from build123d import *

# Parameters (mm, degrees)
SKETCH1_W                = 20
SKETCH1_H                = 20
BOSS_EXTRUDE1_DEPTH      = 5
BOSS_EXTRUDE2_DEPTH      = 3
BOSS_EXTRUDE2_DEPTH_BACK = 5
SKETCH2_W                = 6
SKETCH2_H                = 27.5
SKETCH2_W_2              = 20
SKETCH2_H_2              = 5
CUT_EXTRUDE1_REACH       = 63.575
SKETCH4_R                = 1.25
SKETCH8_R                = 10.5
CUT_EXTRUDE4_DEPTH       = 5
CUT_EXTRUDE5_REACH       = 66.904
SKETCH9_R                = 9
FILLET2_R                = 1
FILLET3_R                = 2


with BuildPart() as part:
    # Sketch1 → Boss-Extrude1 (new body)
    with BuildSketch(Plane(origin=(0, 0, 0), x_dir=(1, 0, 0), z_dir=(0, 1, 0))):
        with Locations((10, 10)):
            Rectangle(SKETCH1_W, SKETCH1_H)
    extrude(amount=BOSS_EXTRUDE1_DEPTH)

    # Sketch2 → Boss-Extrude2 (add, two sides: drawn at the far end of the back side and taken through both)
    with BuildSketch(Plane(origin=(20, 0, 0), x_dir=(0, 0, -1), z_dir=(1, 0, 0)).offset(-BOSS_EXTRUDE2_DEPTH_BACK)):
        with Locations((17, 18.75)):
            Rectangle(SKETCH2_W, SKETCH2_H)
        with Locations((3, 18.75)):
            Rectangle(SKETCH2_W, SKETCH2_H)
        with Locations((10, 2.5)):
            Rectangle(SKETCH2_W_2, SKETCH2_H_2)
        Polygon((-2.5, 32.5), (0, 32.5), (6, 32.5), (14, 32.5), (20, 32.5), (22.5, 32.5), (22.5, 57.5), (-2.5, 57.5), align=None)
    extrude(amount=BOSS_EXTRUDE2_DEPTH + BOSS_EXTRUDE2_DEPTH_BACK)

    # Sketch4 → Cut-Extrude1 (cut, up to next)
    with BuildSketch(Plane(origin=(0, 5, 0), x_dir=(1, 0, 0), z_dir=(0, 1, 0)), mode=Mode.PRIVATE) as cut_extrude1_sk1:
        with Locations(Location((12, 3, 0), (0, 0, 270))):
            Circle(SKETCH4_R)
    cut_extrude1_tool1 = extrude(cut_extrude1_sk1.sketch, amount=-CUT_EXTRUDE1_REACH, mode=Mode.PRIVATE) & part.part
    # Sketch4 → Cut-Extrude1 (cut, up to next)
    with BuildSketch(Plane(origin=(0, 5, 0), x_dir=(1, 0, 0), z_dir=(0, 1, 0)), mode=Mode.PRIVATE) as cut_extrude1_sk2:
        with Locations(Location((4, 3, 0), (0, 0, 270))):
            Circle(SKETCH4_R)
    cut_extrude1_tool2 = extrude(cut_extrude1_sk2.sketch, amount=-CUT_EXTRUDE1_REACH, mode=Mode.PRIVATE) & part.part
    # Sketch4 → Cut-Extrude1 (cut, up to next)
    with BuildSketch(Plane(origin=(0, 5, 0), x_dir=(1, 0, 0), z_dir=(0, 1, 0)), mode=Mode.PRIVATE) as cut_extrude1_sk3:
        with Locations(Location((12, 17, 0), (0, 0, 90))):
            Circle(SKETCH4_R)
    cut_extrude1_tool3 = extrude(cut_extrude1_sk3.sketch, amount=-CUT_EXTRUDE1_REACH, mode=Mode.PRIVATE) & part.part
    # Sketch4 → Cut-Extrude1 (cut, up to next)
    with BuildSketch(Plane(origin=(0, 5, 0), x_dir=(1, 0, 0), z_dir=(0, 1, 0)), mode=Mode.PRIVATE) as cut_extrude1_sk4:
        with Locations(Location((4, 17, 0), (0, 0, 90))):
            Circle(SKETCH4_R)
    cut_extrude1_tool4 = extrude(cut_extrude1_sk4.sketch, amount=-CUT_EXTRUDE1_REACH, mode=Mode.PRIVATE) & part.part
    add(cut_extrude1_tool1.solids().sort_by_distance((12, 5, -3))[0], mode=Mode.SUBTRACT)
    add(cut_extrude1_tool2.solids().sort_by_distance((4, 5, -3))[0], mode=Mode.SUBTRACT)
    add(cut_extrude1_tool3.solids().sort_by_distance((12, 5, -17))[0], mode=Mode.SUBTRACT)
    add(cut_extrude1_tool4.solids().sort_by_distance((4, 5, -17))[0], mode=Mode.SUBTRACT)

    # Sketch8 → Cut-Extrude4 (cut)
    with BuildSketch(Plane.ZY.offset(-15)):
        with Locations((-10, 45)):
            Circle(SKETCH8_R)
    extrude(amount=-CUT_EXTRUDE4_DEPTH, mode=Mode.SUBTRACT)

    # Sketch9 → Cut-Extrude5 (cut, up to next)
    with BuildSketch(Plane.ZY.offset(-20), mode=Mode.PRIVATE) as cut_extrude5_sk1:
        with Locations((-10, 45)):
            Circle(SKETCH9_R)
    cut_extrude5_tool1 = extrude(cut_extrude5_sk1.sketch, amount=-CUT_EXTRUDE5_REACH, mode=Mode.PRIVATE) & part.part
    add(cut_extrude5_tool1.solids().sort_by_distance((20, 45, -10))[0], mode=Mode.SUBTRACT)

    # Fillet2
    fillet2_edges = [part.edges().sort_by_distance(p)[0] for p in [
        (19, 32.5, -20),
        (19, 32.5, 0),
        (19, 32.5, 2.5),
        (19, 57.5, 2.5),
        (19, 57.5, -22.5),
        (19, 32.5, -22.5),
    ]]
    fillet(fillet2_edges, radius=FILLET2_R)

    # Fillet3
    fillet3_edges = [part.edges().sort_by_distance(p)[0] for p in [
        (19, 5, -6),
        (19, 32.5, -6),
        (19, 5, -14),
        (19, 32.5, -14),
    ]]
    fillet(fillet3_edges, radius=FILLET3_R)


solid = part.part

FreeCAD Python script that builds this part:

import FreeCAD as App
import Part
import Sketcher
from FreeCAD import Vector


def edges_at(feature, points):
    """Names of the edges that pass closest to the given points."""
    edges = feature.Shape.Edges
    near = lambda p: min(range(len(edges)), key=lambda i: edges[i].distToShape(Part.Vertex(*p))[0])
    return sorted({f"Edge{near(p) + 1}" for p in points})

doc = App.newDocument("Part")
params = doc.addObject("Spreadsheet::Sheet", "Params")
for row, (alias, value) in enumerate([
    ("sketch1_width", "20 mm"),
    ("pad1_length", "5 mm"),
    ("sketch2_width", "25 mm"),
    ("sketch2_height", "20 mm"),
    ("sketch2_height2", "8 mm"),
    ("sketch2_width2", "32.5 mm"),
    ("sketch2_width3", "27.5 mm"),
    ("pad2_length", "3 mm"),
    ("pad2_length2", "5 mm"),
    ("sketch3_diameter", "2.5 mm"),
    ("sketch4_diameter", "2.5 mm"),
    ("sketch5_diameter", "2.5 mm"),
    ("sketch6_diameter", "2.5 mm"),
    ("sketch7_diameter", "21 mm"),
    ("pocket5_length", "5 mm"),
    ("sketch8_diameter", "18 mm"),
    ("fillet_radius", "1 mm"),
    ("fillet2_radius", "2 mm"),
], start=1):
    params.set(f"A{row}", alias)
    params.set(f"B{row}", "=" + value)
    params.setAlias(f"B{row}", alias)

body = doc.addObject("PartDesign::Body", "Body")

# Sketch on XZ plane
sketch1 = body.newObject("Sketcher::SketchObject", "Sketch")
sketch1.AttachmentSupport = (doc.getObject("XZ_Plane"), [""])
sketch1.MapMode = "FlatFace"
sketch1.addGeometry(Part.LineSegment(Vector(0, -20, 0), Vector(0, 0, 0)), False)
sketch1.addGeometry(Part.LineSegment(Vector(0, 0, 0), Vector(20, 0, 0)), False)
sketch1.addGeometry(Part.LineSegment(Vector(20, 0, 0), Vector(20, -20, 0)), False)
sketch1.addGeometry(Part.LineSegment(Vector(20, -20, 0), Vector(0, -20, 0)), False)
sketch1.addConstraint(Sketcher.Constraint("Coincident", 0, 2, 1, 1))
sketch1.addConstraint(Sketcher.Constraint("Coincident", 1, 2, 2, 1))
sketch1.addConstraint(Sketcher.Constraint("Coincident", 2, 2, 3, 1))
sketch1.addConstraint(Sketcher.Constraint("Coincident", 3, 2, 0, 1))
sketch1.addConstraint(Sketcher.Constraint("Vertical", 0))
sketch1.addConstraint(Sketcher.Constraint("Horizontal", 1))
sketch1.addConstraint(Sketcher.Constraint("Vertical", 2))
sketch1.addConstraint(Sketcher.Constraint("Horizontal", 3))
sketch1.addConstraint(Sketcher.Constraint("Coincident", 0, 2, -1, 1))
sketch1.addConstraint(Sketcher.Constraint("Equal", 3, 0))
sketch1.addConstraint(Sketcher.Constraint("DistanceX", 1, 1, 1, 2, 20.0))
sketch1.setExpression("Constraints[10]", "Params.sketch1_width")
pad1 = body.newObject("PartDesign::Pad", "Pad")
pad1.Profile = sketch1
pad1.setExpression("Length", "Params.pad1_length")
pad1.Reversed = True

# Sketch on YZ plane
sketch2 = body.newObject("Sketcher::SketchObject", "Sketch001")
sketch2.AttachmentSupport = (doc.getObject("YZ_Plane"), [""])
sketch2.MapMode = "FlatFace"
sketch2.AttachmentOffset = App.Placement(Vector(0, 0, 20), App.Rotation())
sketch2.addGeometry(Part.LineSegment(Vector(32.5, 0, 0), Vector(0, 0, 0)), False)
sketch2.addGeometry(Part.LineSegment(Vector(0, 0, 0), Vector(0, -20, 0)), False)
sketch2.addGeometry(Part.LineSegment(Vector(0, -20, 0), Vector(32.5, -20, 0)), False)
sketch2.addGeometry(Part.LineSegment(Vector(32.5, -20, 0), Vector(32.5, -22.5, 0)), False)
sketch2.addGeometry(Part.LineSegment(Vector(32.5, -22.5, 0), Vector(57.5, -22.5, 0)), False)
sketch2.addGeometry(Part.LineSegment(Vector(57.5, -22.5, 0), Vector(57.5, 2.5, 0)), False)
sketch2.addGeometry(Part.LineSegment(Vector(57.5, 2.5, 0), Vector(32.5, 2.5, 0)), False)
sketch2.addGeometry(Part.LineSegment(Vector(32.5, 2.5, 0), Vector(32.5, 0, 0)), False)
sketch2.addGeometry(Part.LineSegment(Vector(32.5, -14, 0), Vector(5, -14, 0)), False)
sketch2.addGeometry(Part.LineSegment(Vector(5, -14, 0), Vector(5, -6, 0)), False)
sketch2.addGeometry(Part.LineSegment(Vector(5, -6, 0), Vector(32.5, -6, 0)), False)
sketch2.addGeometry(Part.LineSegment(Vector(32.5, -6, 0), Vector(32.5, -14, 0)), False)
sketch2.addConstraint(Sketcher.Constraint("Coincident", 0, 2, 1, 1))
sketch2.addConstraint(Sketcher.Constraint("Coincident", 1, 2, 2, 1))
sketch2.addConstraint(Sketcher.Constraint("Coincident", 2, 2, 3, 1))
sketch2.addConstraint(Sketcher.Constraint("Coincident", 3, 2, 4, 1))
sketch2.addConstraint(Sketcher.Constraint("Coincident", 4, 2, 5, 1))
sketch2.addConstraint(Sketcher.Constraint("Coincident", 5, 2, 6, 1))
sketch2.addConstraint(Sketcher.Constraint("Coincident", 6, 2, 7, 1))
sketch2.addConstraint(Sketcher.Constraint("Coincident", 7, 2, 0, 1))
sketch2.addConstraint(Sketcher.Constraint("Coincident", 8, 2, 9, 1))
sketch2.addConstraint(Sketcher.Constraint("Coincident", 9, 2, 10, 1))
sketch2.addConstraint(Sketcher.Constraint("Coincident", 10, 2, 11, 1))
sketch2.addConstraint(Sketcher.Constraint("Coincident", 11, 2, 8, 1))
sketch2.addConstraint(Sketcher.Constraint("Horizontal", 0))
sketch2.addConstraint(Sketcher.Constraint("Vertical", 1))
sketch2.addConstraint(Sketcher.Constraint("Horizontal", 2))
sketch2.addConstraint(Sketcher.Constraint("Vertical", 3))
sketch2.addConstraint(Sketcher.Constraint("Horizontal", 4))
sketch2.addConstraint(Sketcher.Constraint("Vertical", 5))
sketch2.addConstraint(Sketcher.Constraint("Horizontal", 6))
sketch2.addConstraint(Sketcher.Constraint("Vertical", 7))
sketch2.addConstraint(Sketcher.Constraint("Horizontal", 8))
sketch2.addConstraint(Sketcher.Constraint("Vertical", 9))
sketch2.addConstraint(Sketcher.Constraint("Horizontal", 10))
sketch2.addConstraint(Sketcher.Constraint("Vertical", 11))
sketch2.addConstraint(Sketcher.Constraint("Coincident", 0, 2, -1, 1))
sketch2.addConstraint(Sketcher.Constraint("Vertical", 3, 2, 6, 2))
sketch2.addConstraint(Sketcher.Constraint("Vertical", 7, 2, 10, 2))
sketch2.addConstraint(Sketcher.Constraint("Equal", 6, 5))
sketch2.addConstraint(Sketcher.Constraint("Equal", 3, 7))
sketch2.addConstraint(Sketcher.Constraint("DistanceX", 4, 1, 4, 2, 25.0))
sketch2.addConstraint(Sketcher.Constraint("DistanceY", 1, 2, 1, 1, 20.0))
sketch2.addConstraint(Sketcher.Constraint("DistanceY", 9, 1, 9, 2, 8.0))
sketch2.addConstraint(Sketcher.Constraint("DistanceX", 0, 2, 0, 1, 32.5))
sketch2.addConstraint(Sketcher.Constraint("DistanceX", 8, 2, 8, 1, 27.5))
sketch2.addConstraint(Sketcher.Constraint("DistanceY", 8, 2, -1, 1, 14.0))
sketch2.setExpression("Constraints[29]", "Params.sketch2_width")
sketch2.setExpression("Constraints[30]", "Params.sketch2_height")
sketch2.setExpression("Constraints[31]", "Params.sketch2_height2")
sketch2.setExpression("Constraints[32]", "Params.sketch2_width2")
sketch2.setExpression("Constraints[33]", "Params.sketch2_width3")
pad2 = body.newObject("PartDesign::Pad", "Pad001")
pad2.Profile = sketch2
pad2.Type = "TwoLengths"
pad2.setExpression("Length", "Params.pad2_length")
pad2.setExpression("Length2", "Params.pad2_length2")

# Sketch on XZ plane
sketch3 = body.newObject("Sketcher::SketchObject", "Sketch002")
sketch3.AttachmentSupport = (doc.getObject("XZ_Plane"), [""])
sketch3.MapMode = "FlatFace"
sketch3.AttachmentOffset = App.Placement(Vector(0, 0, -5), App.Rotation())
sketch3.addGeometry(Part.Circle(Vector(12, -3, 0), Vector(0, 0, 1), 1.2), False)
sketch3.addConstraint(Sketcher.Constraint("Diameter", 0, 2.5))
sketch3.addConstraint(Sketcher.Constraint("DistanceX", -1, 1, 0, 3, 12.0))
sketch3.addConstraint(Sketcher.Constraint("DistanceY", 0, 3, -1, 1, 3.0))
sketch3.setExpression("Constraints[0]", "Params.sketch3_diameter")
pocket1 = body.newObject("PartDesign::Pocket", "Pocket")
pocket1.Profile = sketch3
pocket1.Type = "UpToFirst"
pocket1.Reversed = True

# Sketch on XZ plane
sketch4 = body.newObject("Sketcher::SketchObject", "Sketch003")
sketch4.AttachmentSupport = (doc.getObject("XZ_Plane"), [""])
sketch4.MapMode = "FlatFace"
sketch4.AttachmentOffset = App.Placement(Vector(0, 0, -5), App.Rotation())
sketch4.addGeometry(Part.Circle(Vector(4, -3, 0), Vector(0, 0, 1), 1.2), False)
sketch4.addConstraint(Sketcher.Constraint("Diameter", 0, 2.5))
sketch4.addConstraint(Sketcher.Constraint("DistanceX", -1, 1, 0, 3, 4.0))
sketch4.addConstraint(Sketcher.Constraint("DistanceY", 0, 3, -1, 1, 3.0))
sketch4.setExpression("Constraints[0]", "Params.sketch4_diameter")
pocket2 = body.newObject("PartDesign::Pocket", "Pocket001")
pocket2.Profile = sketch4
pocket2.Type = "UpToFirst"
pocket2.Reversed = True

# Sketch on XZ plane
sketch5 = body.newObject("Sketcher::SketchObject", "Sketch004")
sketch5.AttachmentSupport = (doc.getObject("XZ_Plane"), [""])
sketch5.MapMode = "FlatFace"
sketch5.AttachmentOffset = App.Placement(Vector(0, 0, -5), App.Rotation())
sketch5.addGeometry(Part.Circle(Vector(12, -17, 0), Vector(0, 0, 1), 1.2), False)
sketch5.addConstraint(Sketcher.Constraint("Diameter", 0, 2.5))
sketch5.addConstraint(Sketcher.Constraint("DistanceX", -1, 1, 0, 3, 12.0))
sketch5.addConstraint(Sketcher.Constraint("DistanceY", 0, 3, -1, 1, 17.0))
sketch5.setExpression("Constraints[0]", "Params.sketch5_diameter")
pocket3 = body.newObject("PartDesign::Pocket", "Pocket002")
pocket3.Profile = sketch5
pocket3.Type = "UpToFirst"
pocket3.Reversed = True

# Sketch on XZ plane
sketch6 = body.newObject("Sketcher::SketchObject", "Sketch005")
sketch6.AttachmentSupport = (doc.getObject("XZ_Plane"), [""])
sketch6.MapMode = "FlatFace"
sketch6.AttachmentOffset = App.Placement(Vector(0, 0, -5), App.Rotation())
sketch6.addGeometry(Part.Circle(Vector(4, -17, 0), Vector(0, 0, 1), 1.2), False)
sketch6.addConstraint(Sketcher.Constraint("Diameter", 0, 2.5))
sketch6.addConstraint(Sketcher.Constraint("DistanceX", -1, 1, 0, 3, 4.0))
sketch6.addConstraint(Sketcher.Constraint("DistanceY", 0, 3, -1, 1, 17.0))
sketch6.setExpression("Constraints[0]", "Params.sketch6_diameter")
pocket4 = body.newObject("PartDesign::Pocket", "Pocket003")
pocket4.Profile = sketch6
pocket4.Type = "UpToFirst"
pocket4.Reversed = True

# Sketch on YZ plane
sketch7 = body.newObject("Sketcher::SketchObject", "Sketch006")
sketch7.AttachmentSupport = (doc.getObject("YZ_Plane"), [""])
sketch7.MapMode = "FlatFace"
sketch7.AttachmentOffset = App.Placement(Vector(0, 0, 15), App.Rotation())
sketch7.addGeometry(Part.Circle(Vector(45, -10, 0), Vector(0, 0, 1), 10), False)
sketch7.addConstraint(Sketcher.Constraint("Diameter", 0, 21.0))
sketch7.addConstraint(Sketcher.Constraint("DistanceX", -1, 1, 0, 3, 45.0))
sketch7.addConstraint(Sketcher.Constraint("DistanceY", 0, 3, -1, 1, 10.0))
sketch7.setExpression("Constraints[0]", "Params.sketch7_diameter")
pocket5 = body.newObject("PartDesign::Pocket", "Pocket004")
pocket5.Profile = sketch7
pocket5.setExpression("Length", "Params.pocket5_length")
pocket5.Reversed = True

# Sketch on YZ plane
sketch8 = body.newObject("Sketcher::SketchObject", "Sketch007")
sketch8.AttachmentSupport = (doc.getObject("YZ_Plane"), [""])
sketch8.MapMode = "FlatFace"
sketch8.AttachmentOffset = App.Placement(Vector(0, 0, 20), App.Rotation())
sketch8.addGeometry(Part.Circle(Vector(45, -10, 0), Vector(0, 0, 1), 9), False)
sketch8.addConstraint(Sketcher.Constraint("Diameter", 0, 18.0))
sketch8.addConstraint(Sketcher.Constraint("DistanceX", -1, 1, 0, 3, 45.0))
sketch8.addConstraint(Sketcher.Constraint("DistanceY", 0, 3, -1, 1, 10.0))
sketch8.setExpression("Constraints[0]", "Params.sketch8_diameter")
pocket6 = body.newObject("PartDesign::Pocket", "Pocket005")
pocket6.Profile = sketch8
pocket6.Type = "UpToFirst"
pocket6.Reversed = True
doc.recompute()

fillet = body.newObject("PartDesign::Fillet", "Fillet")
fillet.Base = (pocket6, edges_at(pocket6, [
    (19, 32.5, -20),
    (19, 32.5, 0),
    (19, 32.5, 2.5),
    (19, 57.5, 2.5),
    (19, 57.5, -22.5),
    (19, 32.5, -22.5),
]))
fillet.setExpression("Radius", "Params.fillet_radius")
doc.recompute()

fillet2 = body.newObject("PartDesign::Fillet", "Fillet001")
fillet2.Base = (fillet, edges_at(fillet, [
    (19, 5, -6),
    (19, 32.5, -6),
    (19, 5, -14),
    (19, 32.5, -14),
]))
fillet2.setExpression("Radius", "Params.fillet2_radius")

doc.recompute()
